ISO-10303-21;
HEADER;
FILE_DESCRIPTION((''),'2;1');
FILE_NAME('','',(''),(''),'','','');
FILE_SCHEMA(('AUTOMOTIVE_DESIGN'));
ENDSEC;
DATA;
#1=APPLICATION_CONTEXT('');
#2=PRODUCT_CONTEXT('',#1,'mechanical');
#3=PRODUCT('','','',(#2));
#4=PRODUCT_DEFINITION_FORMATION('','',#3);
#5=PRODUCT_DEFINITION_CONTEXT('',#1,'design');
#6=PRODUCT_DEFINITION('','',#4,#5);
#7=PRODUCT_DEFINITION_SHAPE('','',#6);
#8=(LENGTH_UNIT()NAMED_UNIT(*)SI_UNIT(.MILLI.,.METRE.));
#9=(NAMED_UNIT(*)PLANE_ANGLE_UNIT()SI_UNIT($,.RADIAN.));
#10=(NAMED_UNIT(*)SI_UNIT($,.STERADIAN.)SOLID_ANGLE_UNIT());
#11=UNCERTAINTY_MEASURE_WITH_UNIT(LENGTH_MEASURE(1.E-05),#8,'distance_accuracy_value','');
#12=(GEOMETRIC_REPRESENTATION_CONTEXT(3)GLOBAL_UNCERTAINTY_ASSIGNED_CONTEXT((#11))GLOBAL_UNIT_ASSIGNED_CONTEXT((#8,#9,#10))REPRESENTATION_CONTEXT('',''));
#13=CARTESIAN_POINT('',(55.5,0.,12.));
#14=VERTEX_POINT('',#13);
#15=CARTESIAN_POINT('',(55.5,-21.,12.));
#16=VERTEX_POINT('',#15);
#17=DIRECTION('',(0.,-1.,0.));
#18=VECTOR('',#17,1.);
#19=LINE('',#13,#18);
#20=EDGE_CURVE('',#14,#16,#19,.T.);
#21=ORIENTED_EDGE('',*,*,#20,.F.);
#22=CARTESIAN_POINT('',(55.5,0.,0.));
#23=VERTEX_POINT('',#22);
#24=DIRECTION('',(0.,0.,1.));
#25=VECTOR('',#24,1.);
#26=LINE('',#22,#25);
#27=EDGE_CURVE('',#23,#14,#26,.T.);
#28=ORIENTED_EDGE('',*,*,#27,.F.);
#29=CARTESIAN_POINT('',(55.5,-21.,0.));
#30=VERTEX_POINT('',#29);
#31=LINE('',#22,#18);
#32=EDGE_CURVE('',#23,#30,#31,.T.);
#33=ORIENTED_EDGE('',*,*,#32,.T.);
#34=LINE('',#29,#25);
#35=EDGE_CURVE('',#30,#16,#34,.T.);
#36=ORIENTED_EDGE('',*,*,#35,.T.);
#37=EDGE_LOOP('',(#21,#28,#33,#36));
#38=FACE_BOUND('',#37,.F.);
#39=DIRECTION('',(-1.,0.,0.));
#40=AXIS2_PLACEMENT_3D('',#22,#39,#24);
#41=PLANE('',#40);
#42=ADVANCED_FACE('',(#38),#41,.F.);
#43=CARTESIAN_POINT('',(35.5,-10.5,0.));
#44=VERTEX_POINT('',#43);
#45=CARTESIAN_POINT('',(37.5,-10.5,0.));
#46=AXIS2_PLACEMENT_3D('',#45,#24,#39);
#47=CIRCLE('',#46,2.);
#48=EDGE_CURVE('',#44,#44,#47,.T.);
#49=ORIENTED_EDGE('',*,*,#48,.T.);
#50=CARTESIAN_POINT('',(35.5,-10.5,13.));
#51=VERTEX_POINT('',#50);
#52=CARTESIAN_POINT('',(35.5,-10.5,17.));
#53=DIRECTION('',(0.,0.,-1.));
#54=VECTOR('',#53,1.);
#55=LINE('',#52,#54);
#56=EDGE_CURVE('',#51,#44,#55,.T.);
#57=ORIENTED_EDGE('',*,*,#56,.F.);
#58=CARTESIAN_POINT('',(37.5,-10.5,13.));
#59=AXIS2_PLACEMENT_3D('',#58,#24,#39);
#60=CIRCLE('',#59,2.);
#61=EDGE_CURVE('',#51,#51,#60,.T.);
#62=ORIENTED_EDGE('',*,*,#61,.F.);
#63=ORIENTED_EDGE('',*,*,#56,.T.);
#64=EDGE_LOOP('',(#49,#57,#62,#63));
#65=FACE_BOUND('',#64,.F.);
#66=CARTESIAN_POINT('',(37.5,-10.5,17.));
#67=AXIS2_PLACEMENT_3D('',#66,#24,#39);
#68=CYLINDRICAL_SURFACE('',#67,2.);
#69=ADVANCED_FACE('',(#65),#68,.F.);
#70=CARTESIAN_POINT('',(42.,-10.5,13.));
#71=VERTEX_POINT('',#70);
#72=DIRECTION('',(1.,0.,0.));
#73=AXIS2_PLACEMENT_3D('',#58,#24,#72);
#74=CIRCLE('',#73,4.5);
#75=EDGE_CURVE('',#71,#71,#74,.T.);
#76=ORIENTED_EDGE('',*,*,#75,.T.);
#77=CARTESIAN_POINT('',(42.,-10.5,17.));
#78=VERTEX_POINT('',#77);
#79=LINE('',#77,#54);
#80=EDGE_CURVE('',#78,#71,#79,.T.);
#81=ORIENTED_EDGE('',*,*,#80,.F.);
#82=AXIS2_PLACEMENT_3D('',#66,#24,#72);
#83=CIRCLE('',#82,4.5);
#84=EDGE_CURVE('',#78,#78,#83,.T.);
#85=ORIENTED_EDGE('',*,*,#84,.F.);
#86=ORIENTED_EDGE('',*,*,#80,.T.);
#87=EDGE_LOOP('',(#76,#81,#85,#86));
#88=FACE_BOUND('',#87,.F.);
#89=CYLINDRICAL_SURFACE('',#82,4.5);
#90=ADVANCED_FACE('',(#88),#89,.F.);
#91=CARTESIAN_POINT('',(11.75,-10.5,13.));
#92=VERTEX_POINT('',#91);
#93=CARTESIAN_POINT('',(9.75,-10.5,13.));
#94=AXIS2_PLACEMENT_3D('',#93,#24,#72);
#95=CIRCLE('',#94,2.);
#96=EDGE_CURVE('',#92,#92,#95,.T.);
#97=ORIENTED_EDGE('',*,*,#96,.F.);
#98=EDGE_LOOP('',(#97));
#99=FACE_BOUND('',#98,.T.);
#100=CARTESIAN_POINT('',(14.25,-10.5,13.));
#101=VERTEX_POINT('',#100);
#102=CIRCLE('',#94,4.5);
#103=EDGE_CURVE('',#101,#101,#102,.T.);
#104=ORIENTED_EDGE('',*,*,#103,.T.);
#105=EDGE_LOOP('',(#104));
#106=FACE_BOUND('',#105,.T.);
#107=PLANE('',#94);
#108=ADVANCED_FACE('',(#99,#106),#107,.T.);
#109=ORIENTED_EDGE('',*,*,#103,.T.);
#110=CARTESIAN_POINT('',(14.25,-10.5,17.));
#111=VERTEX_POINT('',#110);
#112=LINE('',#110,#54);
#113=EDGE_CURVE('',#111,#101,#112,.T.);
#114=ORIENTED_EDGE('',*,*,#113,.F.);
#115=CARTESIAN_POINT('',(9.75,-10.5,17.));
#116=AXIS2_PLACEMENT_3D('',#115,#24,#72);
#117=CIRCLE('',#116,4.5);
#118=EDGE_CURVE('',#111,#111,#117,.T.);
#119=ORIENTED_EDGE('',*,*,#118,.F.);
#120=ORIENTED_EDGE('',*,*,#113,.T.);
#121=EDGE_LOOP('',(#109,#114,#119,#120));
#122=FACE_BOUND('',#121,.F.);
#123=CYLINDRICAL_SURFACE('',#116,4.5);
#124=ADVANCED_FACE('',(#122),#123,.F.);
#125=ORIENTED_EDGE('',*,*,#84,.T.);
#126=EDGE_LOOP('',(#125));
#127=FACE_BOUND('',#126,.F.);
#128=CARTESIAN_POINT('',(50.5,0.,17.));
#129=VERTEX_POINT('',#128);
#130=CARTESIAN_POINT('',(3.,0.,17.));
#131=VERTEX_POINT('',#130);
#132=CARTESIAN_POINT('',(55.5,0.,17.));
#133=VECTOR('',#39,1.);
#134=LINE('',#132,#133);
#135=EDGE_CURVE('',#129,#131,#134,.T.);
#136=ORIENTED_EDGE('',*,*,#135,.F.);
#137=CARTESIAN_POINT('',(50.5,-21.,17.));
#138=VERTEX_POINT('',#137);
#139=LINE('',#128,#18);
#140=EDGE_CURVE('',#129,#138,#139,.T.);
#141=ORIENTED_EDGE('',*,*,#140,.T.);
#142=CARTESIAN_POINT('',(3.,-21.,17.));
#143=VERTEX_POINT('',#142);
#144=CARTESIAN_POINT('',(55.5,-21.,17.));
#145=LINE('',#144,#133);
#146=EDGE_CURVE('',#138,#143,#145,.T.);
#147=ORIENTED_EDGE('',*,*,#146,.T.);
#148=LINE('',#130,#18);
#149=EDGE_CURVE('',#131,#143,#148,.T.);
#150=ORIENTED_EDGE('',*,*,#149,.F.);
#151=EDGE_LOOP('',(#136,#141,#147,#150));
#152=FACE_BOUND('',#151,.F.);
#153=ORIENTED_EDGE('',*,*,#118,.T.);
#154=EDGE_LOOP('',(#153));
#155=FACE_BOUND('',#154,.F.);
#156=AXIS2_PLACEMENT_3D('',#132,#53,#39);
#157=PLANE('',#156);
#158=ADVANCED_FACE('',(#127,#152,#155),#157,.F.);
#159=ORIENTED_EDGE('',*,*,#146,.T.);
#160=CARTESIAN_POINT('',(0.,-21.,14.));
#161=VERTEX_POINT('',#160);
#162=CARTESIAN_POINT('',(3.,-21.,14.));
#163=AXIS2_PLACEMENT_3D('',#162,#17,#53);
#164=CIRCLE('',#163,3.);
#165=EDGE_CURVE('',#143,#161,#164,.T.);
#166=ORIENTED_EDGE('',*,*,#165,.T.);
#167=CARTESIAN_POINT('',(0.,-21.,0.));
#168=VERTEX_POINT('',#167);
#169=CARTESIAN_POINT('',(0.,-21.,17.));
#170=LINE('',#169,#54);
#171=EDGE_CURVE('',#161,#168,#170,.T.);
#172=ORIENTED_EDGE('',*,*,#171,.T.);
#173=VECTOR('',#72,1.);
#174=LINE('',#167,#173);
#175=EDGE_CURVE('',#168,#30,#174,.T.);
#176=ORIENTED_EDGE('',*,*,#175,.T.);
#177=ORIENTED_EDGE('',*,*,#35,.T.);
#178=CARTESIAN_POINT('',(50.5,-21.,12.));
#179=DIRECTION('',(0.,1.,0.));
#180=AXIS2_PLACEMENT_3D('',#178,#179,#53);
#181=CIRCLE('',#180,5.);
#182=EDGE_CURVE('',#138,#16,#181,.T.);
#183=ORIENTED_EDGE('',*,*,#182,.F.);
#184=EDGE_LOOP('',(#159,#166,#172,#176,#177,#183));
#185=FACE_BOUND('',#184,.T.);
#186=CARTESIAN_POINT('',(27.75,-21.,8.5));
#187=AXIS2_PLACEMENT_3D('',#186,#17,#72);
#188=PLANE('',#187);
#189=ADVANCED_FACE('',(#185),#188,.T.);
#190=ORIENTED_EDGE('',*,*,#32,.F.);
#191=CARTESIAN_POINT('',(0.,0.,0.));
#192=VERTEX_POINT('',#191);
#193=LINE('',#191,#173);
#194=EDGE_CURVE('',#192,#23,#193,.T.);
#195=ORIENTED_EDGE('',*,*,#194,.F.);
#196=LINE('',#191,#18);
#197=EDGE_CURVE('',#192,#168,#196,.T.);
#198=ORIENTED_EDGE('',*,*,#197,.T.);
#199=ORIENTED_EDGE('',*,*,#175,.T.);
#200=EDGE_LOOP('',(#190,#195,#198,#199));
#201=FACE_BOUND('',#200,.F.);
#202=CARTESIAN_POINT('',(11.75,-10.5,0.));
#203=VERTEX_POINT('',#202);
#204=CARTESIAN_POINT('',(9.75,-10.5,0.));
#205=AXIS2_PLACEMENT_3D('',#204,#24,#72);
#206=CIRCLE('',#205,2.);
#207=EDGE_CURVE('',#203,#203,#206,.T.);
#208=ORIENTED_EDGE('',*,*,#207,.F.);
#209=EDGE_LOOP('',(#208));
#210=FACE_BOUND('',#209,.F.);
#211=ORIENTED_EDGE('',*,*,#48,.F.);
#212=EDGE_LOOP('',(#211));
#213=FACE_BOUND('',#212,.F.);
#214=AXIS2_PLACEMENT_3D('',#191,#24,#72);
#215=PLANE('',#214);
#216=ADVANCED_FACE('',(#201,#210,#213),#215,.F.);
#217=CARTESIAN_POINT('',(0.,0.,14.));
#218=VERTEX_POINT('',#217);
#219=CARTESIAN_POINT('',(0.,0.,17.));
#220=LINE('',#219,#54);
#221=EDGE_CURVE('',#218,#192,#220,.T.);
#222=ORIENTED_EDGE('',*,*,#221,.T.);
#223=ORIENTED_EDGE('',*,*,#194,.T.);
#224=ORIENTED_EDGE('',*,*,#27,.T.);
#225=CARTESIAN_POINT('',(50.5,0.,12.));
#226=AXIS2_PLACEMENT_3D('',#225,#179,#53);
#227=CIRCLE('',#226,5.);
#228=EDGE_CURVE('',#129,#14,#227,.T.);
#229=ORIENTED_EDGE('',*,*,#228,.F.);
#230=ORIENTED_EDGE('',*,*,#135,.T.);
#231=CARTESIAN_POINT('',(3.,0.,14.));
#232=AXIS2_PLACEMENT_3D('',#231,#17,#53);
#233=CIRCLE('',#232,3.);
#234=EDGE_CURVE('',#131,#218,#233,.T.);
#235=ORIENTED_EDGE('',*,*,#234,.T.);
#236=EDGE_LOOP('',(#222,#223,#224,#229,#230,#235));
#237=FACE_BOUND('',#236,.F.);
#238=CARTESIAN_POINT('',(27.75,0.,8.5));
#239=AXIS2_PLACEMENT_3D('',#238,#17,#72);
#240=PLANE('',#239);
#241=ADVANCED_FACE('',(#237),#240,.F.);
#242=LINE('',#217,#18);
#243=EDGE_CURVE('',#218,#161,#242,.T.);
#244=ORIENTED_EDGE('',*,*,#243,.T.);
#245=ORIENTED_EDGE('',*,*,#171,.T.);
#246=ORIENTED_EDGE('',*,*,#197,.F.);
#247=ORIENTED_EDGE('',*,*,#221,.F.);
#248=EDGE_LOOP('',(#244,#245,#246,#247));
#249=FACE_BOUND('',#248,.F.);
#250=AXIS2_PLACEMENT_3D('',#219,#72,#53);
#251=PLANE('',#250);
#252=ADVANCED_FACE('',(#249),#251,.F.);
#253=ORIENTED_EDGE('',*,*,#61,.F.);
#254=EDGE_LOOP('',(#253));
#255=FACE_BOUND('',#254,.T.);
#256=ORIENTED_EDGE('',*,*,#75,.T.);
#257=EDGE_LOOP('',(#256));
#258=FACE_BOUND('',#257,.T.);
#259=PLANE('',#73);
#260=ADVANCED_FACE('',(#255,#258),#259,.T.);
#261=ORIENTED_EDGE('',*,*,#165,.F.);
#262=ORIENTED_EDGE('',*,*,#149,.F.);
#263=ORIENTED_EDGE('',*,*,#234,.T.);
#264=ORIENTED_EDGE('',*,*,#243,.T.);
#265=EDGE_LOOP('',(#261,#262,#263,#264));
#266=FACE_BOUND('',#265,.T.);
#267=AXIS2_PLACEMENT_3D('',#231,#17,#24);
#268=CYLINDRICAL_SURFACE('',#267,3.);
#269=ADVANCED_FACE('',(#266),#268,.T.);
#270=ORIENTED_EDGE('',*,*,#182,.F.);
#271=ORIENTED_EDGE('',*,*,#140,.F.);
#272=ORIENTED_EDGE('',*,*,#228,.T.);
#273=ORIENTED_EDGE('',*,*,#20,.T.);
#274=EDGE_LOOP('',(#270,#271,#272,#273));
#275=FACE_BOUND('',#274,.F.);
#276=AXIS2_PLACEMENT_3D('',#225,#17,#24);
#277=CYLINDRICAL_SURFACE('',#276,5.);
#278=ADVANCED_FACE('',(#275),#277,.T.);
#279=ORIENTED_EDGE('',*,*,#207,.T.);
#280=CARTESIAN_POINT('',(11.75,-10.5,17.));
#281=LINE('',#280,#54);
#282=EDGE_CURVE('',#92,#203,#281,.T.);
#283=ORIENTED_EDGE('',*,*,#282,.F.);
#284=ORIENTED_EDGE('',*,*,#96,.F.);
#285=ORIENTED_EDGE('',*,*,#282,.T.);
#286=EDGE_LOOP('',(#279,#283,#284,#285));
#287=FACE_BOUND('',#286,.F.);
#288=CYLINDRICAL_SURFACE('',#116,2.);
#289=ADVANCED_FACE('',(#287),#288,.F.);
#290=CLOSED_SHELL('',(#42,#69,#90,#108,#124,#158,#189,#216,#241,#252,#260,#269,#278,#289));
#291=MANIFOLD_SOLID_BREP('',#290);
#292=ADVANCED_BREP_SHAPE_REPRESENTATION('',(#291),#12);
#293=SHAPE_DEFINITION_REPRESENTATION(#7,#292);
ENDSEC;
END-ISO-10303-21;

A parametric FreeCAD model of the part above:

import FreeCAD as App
import Part
import Sketcher
from FreeCAD import Vector


def edges_at(feature, points):
    """Names of the edges that pass closest to the given points."""
    edges = feature.Shape.Edges
    near = lambda p: min(range(len(edges)), key=lambda i: edges[i].distToShape(Part.Vertex(*p))[0])
    return sorted({f"Edge{near(p) + 1}" for p in points})

doc = App.newDocument("Part")
body = doc.addObject("PartDesign::Body", "Body")

sketch1 = body.newObject("Sketcher::SketchObject", "Sketch")
sketch1.AttachmentSupport = (doc.getObject("XZ_Plane"), [""])
sketch1.MapMode = "FlatFace"
sketch1.addGeometry(Part.LineSegment(Vector(56, 17, 0), Vector(0, 17, 0)), False)
sketch1.addGeometry(Part.LineSegment(Vector(0, 17, 0), Vector(0, 0, 0)), False)
sketch1.addGeometry(Part.LineSegment(Vector(0, 0, 0), Vector(56, 0, 0)), False)
sketch1.addGeometry(Part.LineSegment(Vector(56, 0, 0), Vector(56, 17, 0)), False)
sketch1.addConstraint(Sketcher.Constraint("Coincident", 0, 2, 1, 1))
sketch1.addConstraint(Sketcher.Constraint("Coincident", 1, 2, 2, 1))
sketch1.addConstraint(Sketcher.Constraint("Coincident", 2, 2, 3, 1))
sketch1.addConstraint(Sketcher.Constraint("Coincident", 3, 2, 0, 1))
sketch1.addConstraint(Sketcher.Constraint("Horizontal", 0))
sketch1.addConstraint(Sketcher.Constraint("Vertical", 1))
sketch1.addConstraint(Sketcher.Constraint("Horizontal", 2))
sketch1.addConstraint(Sketcher.Constraint("Vertical", 3))
sketch1.addConstraint(Sketcher.Constraint("Coincident", 1, 2, -1, 1))
sketch1.addConstraint(Sketcher.Constraint("DistanceY", 1, 2, 1, 1, 17.0))
sketch1.addConstraint(Sketcher.Constraint("DistanceX", 0, 2, 0, 1, 55.5))
pad1 = body.newObject("PartDesign::Pad", "Pad")
pad1.Profile = sketch1
pad1.Length = 21
doc.recompute()

fillet = body.newObject("PartDesign::Fillet", "Fillet")
fillet.Base = (pad1, edges_at(pad1, [(55.5, -10.5, 17)]))
fillet.Radius = 5

sketch2 = body.newObject("Sketcher::SketchObject", "Sketch001")
sketch2.AttachmentSupport = (doc.getObject("XY_Plane"), [""])
sketch2.MapMode = "FlatFace"
sketch2.AttachmentOffset = App.Placement(Vector(0, 0, 17), App.Rotation())
sketch2.addGeometry(Part.Circle(Vector(37.5, -10.5, 0), Vector(0, 0, 1), 2), False)
sketch2.addGeometry(Part.Circle(Vector(9.8, -10.5, 0), Vector(0, 0, 1), 2), False)
sketch2.addConstraint(Sketcher.Constraint("Equal", 0, 1))
sketch2.addConstraint(Sketcher.Constraint("Horizontal", 0, 3, 1, 3))
sketch2.addConstraint(Sketcher.Constraint("Diameter", 0, 4.0))
sketch2.addConstraint(Sketcher.Constraint("DistanceX", -1, 1, 0, 3, 37.5))
sketch2.addConstraint(Sketcher.Constraint("DistanceY", 0, 3, -1, 1, 10.5))
sketch2.addConstraint(Sketcher.Constraint("DistanceX", -1, 1, 1, 3, 9.75))
pocket1 = body.newObject("PartDesign::Pocket", "Pocket")
pocket1.Profile = sketch2
pocket1.Length = 25
doc.recompute()

fillet2 = body.newObject("PartDesign::Fillet", "Fillet001")
fillet2.Base = (pocket1, edges_at(pocket1, [(0, -10.5, 17)]))
fillet2.Radius = 3

sketch3 = body.newObject("Sketcher::SketchObject", "Sketch002")
sketch3.AttachmentSupport = (doc.getObject("XY_Plane"), [""])
sketch3.MapMode = "FlatFace"
sketch3.AttachmentOffset = App.Placement(Vector(0, 0, 17), App.Rotation())
sketch3.addGeometry(Part.Circle(Vector(9.8, -10.5, 0), Vector(0, 0, 1), 4.5), False)
sketch3.addGeometry(Part.Circle(Vector(37.5, -10.5, 0), Vector(0, 0, 1), 4.5), False)
sketch3.addConstraint(Sketcher.Constraint("Equal", 0, 1))
sketch3.addConstraint(Sketcher.Constraint("Horizontal", 0, 3, 1, 3))
sketch3.addConstraint(Sketcher.Constraint("Diameter", 0, 9.0))
sketch3.addConstraint(Sketcher.Constraint("DistanceY", 0, 3, -1, 1, 10.5))
sketch3.addConstraint(Sketcher.Constraint("DistanceX", -1, 1, 1, 3, 37.5))
sketch3.addConstraint(Sketcher.Constraint("DistanceX", -1, 1, 0, 3, 9.75))
pocket2 = body.newObject("PartDesign::Pocket", "Pocket001")
pocket2.Profile = sketch3
pocket2.Length = 4

doc.recompute()
